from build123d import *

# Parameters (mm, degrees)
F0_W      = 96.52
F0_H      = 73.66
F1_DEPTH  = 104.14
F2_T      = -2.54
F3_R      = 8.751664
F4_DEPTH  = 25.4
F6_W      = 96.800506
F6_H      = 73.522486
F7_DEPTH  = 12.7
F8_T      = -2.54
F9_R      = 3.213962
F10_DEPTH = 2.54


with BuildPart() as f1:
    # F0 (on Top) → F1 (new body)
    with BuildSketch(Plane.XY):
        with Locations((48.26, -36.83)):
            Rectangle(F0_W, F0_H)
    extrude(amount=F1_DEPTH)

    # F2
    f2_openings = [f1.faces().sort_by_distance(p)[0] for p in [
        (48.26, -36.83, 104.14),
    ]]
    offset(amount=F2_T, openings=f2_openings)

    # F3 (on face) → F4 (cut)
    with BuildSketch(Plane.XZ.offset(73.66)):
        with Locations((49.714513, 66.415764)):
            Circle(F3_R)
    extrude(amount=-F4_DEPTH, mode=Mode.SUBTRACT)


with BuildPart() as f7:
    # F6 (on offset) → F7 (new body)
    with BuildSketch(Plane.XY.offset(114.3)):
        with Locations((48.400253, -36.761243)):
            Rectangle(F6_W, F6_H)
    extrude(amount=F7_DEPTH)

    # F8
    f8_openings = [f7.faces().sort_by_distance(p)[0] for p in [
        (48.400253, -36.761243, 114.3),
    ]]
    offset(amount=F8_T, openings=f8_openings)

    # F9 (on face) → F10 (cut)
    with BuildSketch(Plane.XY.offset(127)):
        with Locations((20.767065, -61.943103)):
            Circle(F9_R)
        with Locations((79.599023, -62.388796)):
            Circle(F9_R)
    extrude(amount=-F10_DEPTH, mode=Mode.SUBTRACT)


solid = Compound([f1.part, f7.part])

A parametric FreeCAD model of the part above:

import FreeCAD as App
import Part
import Sketcher
Q = App.Units.Quantity


def faces_at(feature, points):
    """Names of the faces that lie closest to the given points."""
    faces = feature.Shape.Faces
    near = lambda p: min(range(len(faces)), key=lambda i: faces[i].distToShape(Part.Vertex(*p))[0])
    return sorted({f"Face{near(p) + 1}" for p in points})

doc = App.newDocument("Part")
body = doc.addObject("PartDesign::Body", "Body")

# Sketch on XY plane
sketch1 = body.newObject("Sketcher::SketchObject", "Sketch")
sketch1.AttachmentSupport = (doc.getObject("XY_Plane"), [""])
sketch1.MapMode = "FlatFace"
sketch1.addGeometry(Part.LineSegment(App.Vector(0, 0, 0), App.Vector(0, -73.66, 0)), False)
sketch1.addGeometry(Part.LineSegment(App.Vector(0, -73.66, 0), App.Vector(96.52, -73.66, 0)), False)
sketch1.addGeometry(Part.LineSegment(App.Vector(96.52, -73.66, 0), App.Vector(96.52, 0, 0)), False)
sketch1.addGeometry(Part.LineSegment(App.Vector(96.52, 0, 0), App.Vector(0, 0, 0)), False)
sketch1.addConstraint(Sketcher.Constraint("Coincident", 0, 2, 1, 1))
sketch1.addConstraint(Sketcher.Constraint("Coincident", 1, 2, 2, 1))
sketch1.addConstraint(Sketcher.Constraint("Coincident", 2, 2, 3, 1))
sketch1.addConstraint(Sketcher.Constraint("Coincident", 3, 2, 0, 1))
sketch1.addConstraint(Sketcher.Constraint("Vertical", 0))
sketch1.addConstraint(Sketcher.Constraint("Horizontal", 1))
sketch1.addConstraint(Sketcher.Constraint("Vertical", 2))
sketch1.addConstraint(Sketcher.Constraint("Horizontal", 3))
sketch1.addConstraint(Sketcher.Constraint("Coincident", 3, 2, -1, 1))
sketch1.addConstraint(Sketcher.Constraint("DistanceX", 1, 1, 1, 2, Q("3.8 in")))
sketch1.addConstraint(Sketcher.Constraint("DistanceY", 0, 2, 0, 1, Q("2.9 in")))
pad1 = body.newObject("PartDesign::Pad", "Pad")
pad1.Profile = sketch1
pad1.Length = Q("4.1 in")
doc.recompute()

thickness = body.newObject("PartDesign::Thickness", "Thickness")
thickness.Base = (pad1, faces_at(pad1, [(48.26, -36.83, 104.14)]))
thickness.Value = Q("0.1 in")
thickness.Reversed = True
thickness.Join = "Arc"

# Sketch on XZ plane
sketch2 = body.newObject("Sketcher::SketchObject", "Sketch001")
sketch2.AttachmentSupport = (doc.getObject("XZ_Plane"), [""])
sketch2.MapMode = "FlatFace"
sketch2.AttachmentOffset = App.Placement(App.Vector(0, 0, 2.9 * 25.4), App.Rotation())
sketch2.addGeometry(Part.Circle(App.Vector(49.714513, 66.415764, 0), App.Vector(0, 0, 1), 8.751664), False)
sketch2.addConstraint(Sketcher.Constraint("Diameter", 0, 17.503328))
sketch2.addConstraint(Sketcher.Constraint("DistanceX", -1, 1, 0, 3, 49.714513))
sketch2.addConstraint(Sketcher.Constraint("DistanceY", -1, 1, 0, 3, 66.415764))
pocket1 = body.newObject("PartDesign::Pocket", "Pocket")
pocket1.Profile = sketch2
pocket1.Length = Q("1 in")
body2 = doc.addObject("PartDesign::Body", "Body001")

# Sketch on XY plane
sketch3 = body2.newObject("Sketcher::SketchObject", "Sketch002")
sketch3.AttachmentSupport = (doc.getObject("XY_Plane001"), [""])
sketch3.MapMode = "FlatFace"
sketch3.AttachmentOffset = App.Placement(App.Vector(0, 0, 4.5 * 25.4), App.Rotation())
sketch3.addGeometry(Part.LineSegment(App.Vector(0, 0, 0), App.Vector(0, -73.522486, 0)), False)
sketch3.addGeometry(Part.LineSegment(App.Vector(0, -73.522486, 0), App.Vector(96.800506, -73.522486, 0)), False)
sketch3.addGeometry(Part.LineSegment(App.Vector(96.800506, -73.522486, 0), App.Vector(96.800506, 0, 0)), False)
sketch3.addGeometry(Part.LineSegment(App.Vector(96.800506, 0, 0), App.Vector(0, 0, 0)), False)
sketch3.addConstraint(Sketcher.Constraint("Coincident", 0, 2, 1, 1))
sketch3.addConstraint(Sketcher.Constraint("Coincident", 1, 2, 2, 1))
sketch3.addConstraint(Sketcher.Constraint("Coincident", 2, 2, 3, 1))
sketch3.addConstraint(Sketcher.Constraint("Coincident", 3, 2, 0, 1))
sketch3.addConstraint(Sketcher.Constraint("Vertical", 0))
sketch3.addConstraint(Sketcher.Constraint("Horizontal", 1))
sketch3.addConstraint(Sketcher.Constraint("Vertical", 2))
sketch3.addConstraint(Sketcher.Constraint("Horizontal", 3))
sketch3.addConstraint(Sketcher.Constraint("Coincident", 3, 2, -1, 1))
sketch3.addConstraint(Sketcher.Constraint("DistanceX", 1, 1, 1, 2, 96.800506))
sketch3.addConstraint(Sketcher.Constraint("DistanceY", 0, 2, 0, 1, 73.522486))
pad2 = body2.newObject("PartDesign::Pad", "Pad001")
pad2.Profile = sketch3
pad2.Length = Q("0.5 in")
doc.recompute()

thickness2 = body2.newObject("PartDesign::Thickness", "Thickness001")
thickness2.Base = (pad2, faces_at(pad2, [(48.4, -36.761, 114.3)]))
thickness2.Value = Q("0.1 in")
thickness2.Reversed = True
thickness2.Join = "Arc"

# Sketch on XY plane
sketch4 = body2.newObject("Sketcher::SketchObject", "Sketch003")
sketch4.AttachmentSupport = (doc.getObject("XY_Plane001"), [""])
sketch4.MapMode = "FlatFace"
sketch4.AttachmentOffset = App.Placement(App.Vector(0, 0, 5 * 25.4), App.Rotation())
sketch4.addGeometry(Part.Circle(App.Vector(20.767065, -61.943103, 0), App.Vector(0, 0, 1), 3.213962), False)
sketch4.addGeometry(Part.Circle(App.Vector(79.599023, -62.388796, 0), App.Vector(0, 0, 1), 3.213962), False)
sketch4.addConstraint(Sketcher.Constraint("Equal", 0, 1))
sketch4.addConstraint(Sketcher.Constraint("Diameter", 0, 6.427924))
sketch4.addConstraint(Sketcher.Constraint("DistanceX", -1, 1, 0, 3, 20.767065))
sketch4.addConstraint(Sketcher.Constraint("DistanceY", 0, 3, -1, 1, 61.943103))
sketch4.addConstraint(Sketcher.Constraint("DistanceX", -1, 1, 1, 3, 79.599023))
sketch4.addConstraint(Sketcher.Constraint("DistanceY", 1, 3, -1, 1, 62.388796))
pocket2 = body2.newObject("PartDesign::Pocket", "Pocket001")
pocket2.Profile = sketch4
pocket2.Length = Q("0.1 in")

doc.recompute()
